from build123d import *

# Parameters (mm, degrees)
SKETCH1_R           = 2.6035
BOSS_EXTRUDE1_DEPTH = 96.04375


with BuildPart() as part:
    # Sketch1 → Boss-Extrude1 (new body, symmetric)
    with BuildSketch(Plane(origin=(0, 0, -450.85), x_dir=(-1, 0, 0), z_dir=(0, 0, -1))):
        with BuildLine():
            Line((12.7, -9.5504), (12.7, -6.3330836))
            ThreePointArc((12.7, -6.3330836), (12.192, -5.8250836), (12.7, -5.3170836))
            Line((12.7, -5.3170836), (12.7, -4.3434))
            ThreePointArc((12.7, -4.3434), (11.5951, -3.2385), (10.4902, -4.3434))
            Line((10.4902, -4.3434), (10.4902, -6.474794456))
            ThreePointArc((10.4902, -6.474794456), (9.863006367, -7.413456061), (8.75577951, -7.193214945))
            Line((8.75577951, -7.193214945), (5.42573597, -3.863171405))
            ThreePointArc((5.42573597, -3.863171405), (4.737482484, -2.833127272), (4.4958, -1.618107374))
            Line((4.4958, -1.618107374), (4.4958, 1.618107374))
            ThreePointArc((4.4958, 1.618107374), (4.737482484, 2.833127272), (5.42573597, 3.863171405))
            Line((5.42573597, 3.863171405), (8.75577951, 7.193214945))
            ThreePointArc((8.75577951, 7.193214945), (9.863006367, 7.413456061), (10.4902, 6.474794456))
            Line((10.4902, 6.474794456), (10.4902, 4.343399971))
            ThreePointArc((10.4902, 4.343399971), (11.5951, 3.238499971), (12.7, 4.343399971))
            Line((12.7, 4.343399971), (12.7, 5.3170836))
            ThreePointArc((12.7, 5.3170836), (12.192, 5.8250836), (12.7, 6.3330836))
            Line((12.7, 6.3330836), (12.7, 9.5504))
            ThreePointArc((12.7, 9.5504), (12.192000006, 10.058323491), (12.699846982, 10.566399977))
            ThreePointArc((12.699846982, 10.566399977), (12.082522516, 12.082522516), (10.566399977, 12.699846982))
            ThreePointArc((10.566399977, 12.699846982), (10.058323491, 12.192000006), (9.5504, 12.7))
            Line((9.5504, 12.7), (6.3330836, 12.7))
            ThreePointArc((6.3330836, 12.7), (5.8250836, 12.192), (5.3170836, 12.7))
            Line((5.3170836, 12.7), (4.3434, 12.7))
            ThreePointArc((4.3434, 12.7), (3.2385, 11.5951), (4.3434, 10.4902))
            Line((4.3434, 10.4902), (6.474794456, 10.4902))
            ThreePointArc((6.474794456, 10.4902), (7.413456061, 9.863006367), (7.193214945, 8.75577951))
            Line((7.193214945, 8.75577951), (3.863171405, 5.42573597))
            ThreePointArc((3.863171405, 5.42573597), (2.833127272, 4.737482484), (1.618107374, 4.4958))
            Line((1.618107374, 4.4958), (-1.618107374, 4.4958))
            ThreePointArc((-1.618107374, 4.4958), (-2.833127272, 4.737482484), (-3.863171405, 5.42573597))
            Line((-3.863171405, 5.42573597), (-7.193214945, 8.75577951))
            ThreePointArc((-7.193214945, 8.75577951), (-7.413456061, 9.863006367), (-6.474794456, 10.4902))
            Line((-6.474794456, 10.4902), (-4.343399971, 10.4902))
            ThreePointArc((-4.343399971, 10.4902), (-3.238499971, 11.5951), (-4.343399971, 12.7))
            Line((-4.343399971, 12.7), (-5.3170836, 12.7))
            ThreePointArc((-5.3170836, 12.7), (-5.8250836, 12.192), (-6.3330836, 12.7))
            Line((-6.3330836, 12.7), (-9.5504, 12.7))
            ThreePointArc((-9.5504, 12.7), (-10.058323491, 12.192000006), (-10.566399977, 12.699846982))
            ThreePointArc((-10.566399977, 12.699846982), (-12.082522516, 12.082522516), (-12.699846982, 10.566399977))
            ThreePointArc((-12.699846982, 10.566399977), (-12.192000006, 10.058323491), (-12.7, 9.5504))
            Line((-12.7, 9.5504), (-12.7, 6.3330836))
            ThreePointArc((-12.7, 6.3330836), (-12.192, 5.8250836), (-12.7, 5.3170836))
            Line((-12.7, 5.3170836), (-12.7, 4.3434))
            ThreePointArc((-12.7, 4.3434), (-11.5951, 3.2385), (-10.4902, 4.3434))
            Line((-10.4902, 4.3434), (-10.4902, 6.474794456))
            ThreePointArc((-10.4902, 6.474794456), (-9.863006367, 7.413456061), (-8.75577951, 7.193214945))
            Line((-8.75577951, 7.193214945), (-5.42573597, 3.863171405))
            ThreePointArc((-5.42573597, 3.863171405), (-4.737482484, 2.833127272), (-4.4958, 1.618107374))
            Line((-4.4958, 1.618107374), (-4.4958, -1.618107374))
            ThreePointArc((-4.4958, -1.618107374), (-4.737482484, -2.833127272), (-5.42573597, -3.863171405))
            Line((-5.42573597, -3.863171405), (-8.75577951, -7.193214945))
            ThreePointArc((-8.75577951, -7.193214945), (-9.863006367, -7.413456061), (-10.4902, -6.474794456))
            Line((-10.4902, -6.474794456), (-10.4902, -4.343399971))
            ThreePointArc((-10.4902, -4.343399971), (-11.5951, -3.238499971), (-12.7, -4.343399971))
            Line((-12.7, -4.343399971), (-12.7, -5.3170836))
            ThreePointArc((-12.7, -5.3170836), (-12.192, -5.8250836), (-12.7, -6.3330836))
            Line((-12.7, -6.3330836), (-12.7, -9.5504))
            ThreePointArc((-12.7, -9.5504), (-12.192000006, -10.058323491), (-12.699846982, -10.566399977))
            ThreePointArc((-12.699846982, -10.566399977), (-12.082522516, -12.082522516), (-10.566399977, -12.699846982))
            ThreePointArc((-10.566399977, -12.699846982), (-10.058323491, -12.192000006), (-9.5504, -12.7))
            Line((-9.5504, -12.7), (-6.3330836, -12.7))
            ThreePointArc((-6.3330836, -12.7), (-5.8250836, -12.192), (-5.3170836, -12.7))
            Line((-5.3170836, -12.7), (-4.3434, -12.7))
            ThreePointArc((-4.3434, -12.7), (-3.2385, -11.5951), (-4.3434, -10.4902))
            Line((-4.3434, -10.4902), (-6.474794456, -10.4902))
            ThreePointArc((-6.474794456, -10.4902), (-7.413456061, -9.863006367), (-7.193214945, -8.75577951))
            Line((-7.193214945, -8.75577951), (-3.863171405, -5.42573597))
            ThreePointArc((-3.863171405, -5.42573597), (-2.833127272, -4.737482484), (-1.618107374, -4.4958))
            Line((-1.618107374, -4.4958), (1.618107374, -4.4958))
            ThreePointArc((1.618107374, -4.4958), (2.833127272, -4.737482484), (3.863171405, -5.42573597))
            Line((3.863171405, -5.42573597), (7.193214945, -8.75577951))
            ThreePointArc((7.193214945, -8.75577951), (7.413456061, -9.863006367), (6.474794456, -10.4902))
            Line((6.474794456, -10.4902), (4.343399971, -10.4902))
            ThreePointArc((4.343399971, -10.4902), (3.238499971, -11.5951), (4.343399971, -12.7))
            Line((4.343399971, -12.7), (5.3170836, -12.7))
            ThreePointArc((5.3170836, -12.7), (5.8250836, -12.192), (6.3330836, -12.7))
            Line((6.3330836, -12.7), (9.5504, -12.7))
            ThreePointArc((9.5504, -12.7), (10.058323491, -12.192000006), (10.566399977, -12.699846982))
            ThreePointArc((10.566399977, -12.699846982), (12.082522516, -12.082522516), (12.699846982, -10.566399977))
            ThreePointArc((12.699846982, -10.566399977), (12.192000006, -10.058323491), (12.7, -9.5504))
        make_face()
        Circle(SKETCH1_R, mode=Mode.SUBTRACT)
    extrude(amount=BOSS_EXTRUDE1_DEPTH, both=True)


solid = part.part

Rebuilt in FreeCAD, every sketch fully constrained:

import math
import FreeCAD as App
import Part
import Sketcher
Q = App.Units.Quantity

doc = App.newDocument("Part")
params = doc.addObject("Spreadsheet::Sheet", "Params")
for row, (alias, value) in enumerate([
    ("sketch1_radius", "0.02 in"),
    ("sketch1_radius2", "0.04 in"),
    ("sketch1_diameter", "0.205 in"),
    ("sketch1_radius3", "0.125 in"),
    ("sketch1_radius4", "0.083 in"),
    ("pad1_length", "7.5625 in"),
], start=1):
    params.set(f"A{row}", alias)
    params.set(f"B{row}", "=" + value)
    params.setAlias(f"B{row}", alias)

body = doc.addObject("PartDesign::Body", "Body")

# Sketch on XY plane
sketch1 = body.newObject("Sketcher::SketchObject", "Sketch")
sketch1.AttachmentSupport = (doc.getObject("XY_Plane"), [""])
sketch1.MapMode = "FlatFace"
sketch1.AttachmentOffset = App.Placement(App.Vector(0, 0, -17.75 * 25.4), App.Rotation())
sketch1.addGeometry(Part.LineSegment(App.Vector(-12.7, -9.5504, 0), App.Vector(-12.7, -6.333084, 0)), False)
sketch1.addGeometry(Part.ArcOfCircle(Part.Circle(App.Vector(-12.7, -5.825084, 0), App.Vector(0, 0, 1), 0.508), math.radians(-90), math.radians(90)), False)
sketch1.addGeometry(Part.LineSegment(App.Vector(-12.7, -5.317084, 0), App.Vector(-12.7, -4.3434, 0)), False)
sketch1.addGeometry(Part.ArcOfCircle(Part.Circle(App.Vector(-11.5951, -4.3434, 0), App.Vector(0, 0, 1), 1.1049), math.radians(0), math.radians(180)), False)
sketch1.addGeometry(Part.LineSegment(App.Vector(-10.4902, -4.3434, 0), App.Vector(-10.4902, -6.474794, 0)), False)
sketch1.addGeometry(Part.ArcOfCircle(Part.Circle(App.Vector(-9.4742, -6.474794, 0), App.Vector(0, 0, 1), 1.016), math.radians(180), math.radians(315)), False)
sketch1.addGeometry(Part.LineSegment(App.Vector(-8.75578, -7.193215, 0), App.Vector(-5.425736, -3.863171, 0)), False)
sketch1.addGeometry(Part.ArcOfCircle(Part.Circle(App.Vector(-7.6708, -1.618107, 0), App.Vector(0, 0, 1), 3.175), math.radians(-45), math.radians(0)), False)
sketch1.addGeometry(Part.LineSegment(App.Vector(-4.4958, -1.618107, 0), App.Vector(-4.4958, 1.618107, 0)), False)
sketch1.addGeometry(Part.ArcOfCircle(Part.Circle(App.Vector(-7.6708, 1.618107, 0), App.Vector(0, 0, 1), 3.175), math.radians(0), math.radians(45)), False)
sketch1.addGeometry(Part.LineSegment(App.Vector(-5.425736, 3.863171, 0), App.Vector(-8.75578, 7.193215, 0)), False)
sketch1.addGeometry(Part.ArcOfCircle(Part.Circle(App.Vector(-9.4742, 6.474794, 0), App.Vector(0, 0, 1), 1.016), math.radians(45), math.radians(180)), False)
sketch1.addGeometry(Part.LineSegment(App.Vector(-10.4902, 6.474794, 0), App.Vector(-10.4902, 4.3434, 0)), False)
sketch1.addGeometry(Part.ArcOfCircle(Part.Circle(App.Vector(-11.5951, 4.3434, 0), App.Vector(0, 0, 1), 1.1049), math.radians(180), math.radians(360)), False)
sketch1.addGeometry(Part.LineSegment(App.Vector(-12.7, 4.3434, 0), App.Vector(-12.7, 5.317084, 0)), False)
sketch1.addGeometry(Part.ArcOfCircle(Part.Circle(App.Vector(-12.7, 5.825084, 0), App.Vector(0, 0, 1), 0.508), math.radians(-90), math.radians(90)), False)
sketch1.addGeometry(Part.LineSegment(App.Vector(-12.7, 6.333084, 0), App.Vector(-12.7, 9.5504, 0)), False)
sketch1.addGeometry(Part.ArcOfCircle(Part.Circle(App.Vector(-12.7, 10.0584, 0), App.Vector(0, 0, 1), 0.508), math.radians(-90), math.radians(89.982742)), False)
sketch1.addGeometry(Part.ArcOfCircle(Part.Circle(App.Vector(-10.5918, 10.5918, 0), App.Vector(0, 0, 1), 2.1082), math.radians(89.309672), math.radians(180.690328)), False)
sketch1.addGeometry(Part.ArcOfCircle(Part.Circle(App.Vector(-10.0584, 12.7, 0), App.Vector(0, 0, 1), 0.508), math.radians(-179.982742), math.radians(0)), False)
sketch1.addGeometry(Part.LineSegment(App.Vector(-9.5504, 12.7, 0), App.Vector(-6.333084, 12.7, 0)), False)
sketch1.addGeometry(Part.ArcOfCircle(Part.Circle(App.Vector(-5.825084, 12.7, 0), App.Vector(0, 0, 1), 0.508), math.radians(180), math.radians(360)), False)
sketch1.addGeometry(Part.LineSegment(App.Vector(-5.317084, 12.7, 0), App.Vector(-4.3434, 12.7, 0)), False)
sketch1.addGeometry(Part.ArcOfCircle(Part.Circle(App.Vector(-4.3434, 11.5951, 0), App.Vector(0, 0, 1), 1.1049), math.radians(-90), math.radians(90)), False)
sketch1.addGeometry(Part.LineSegment(App.Vector(-4.3434, 10.4902, 0), App.Vector(-6.474794, 10.4902, 0)), False)
sketch1.addGeometry(Part.ArcOfCircle(Part.Circle(App.Vector(-6.474794, 9.4742, 0), App.Vector(0, 0, 1), 1.016), math.radians(90), math.radians(225)), False)
sketch1.addGeometry(Part.LineSegment(App.Vector(-7.193215, 8.75578, 0), App.Vector(-3.863171, 5.425736, 0)), False)
sketch1.addGeometry(Part.ArcOfCircle(Part.Circle(App.Vector(-1.618107, 7.6708, 0), App.Vector(0, 0, 1), 3.175), math.radians(-135), math.radians(-90)), False)
sketch1.addGeometry(Part.LineSegment(App.Vector(-1.618107, 4.4958, 0), App.Vector(1.618107, 4.4958, 0)), False)
sketch1.addGeometry(Part.ArcOfCircle(Part.Circle(App.Vector(1.618107, 7.6708, 0), App.Vector(0, 0, 1), 3.175), math.radians(-90), math.radians(-45)), False)
sketch1.addGeometry(Part.LineSegment(App.Vector(3.863171, 5.425736, 0), App.Vector(7.193215, 8.75578, 0)), False)
sketch1.addGeometry(Part.ArcOfCircle(Part.Circle(App.Vector(6.474794, 9.4742, 0), App.Vector(0, 0, 1), 1.016), math.radians(-45), math.radians(90)), False)
sketch1.addGeometry(Part.LineSegment(App.Vector(6.474794, 10.4902, 0), App.Vector(4.3434, 10.4902, 0)), False)
sketch1.addGeometry(Part.ArcOfCircle(Part.Circle(App.Vector(4.3434, 11.5951, 0), App.Vector(0, 0, 1), 1.1049), math.radians(90), math.radians(270)), False)
sketch1.addGeometry(Part.LineSegment(App.Vector(4.3434, 12.7, 0), App.Vector(5.317084, 12.7, 0)), False)
sketch1.addGeometry(Part.ArcOfCircle(Part.Circle(App.Vector(5.825084, 12.7, 0), App.Vector(0, 0, 1), 0.508), math.radians(180), math.radians(360)), False)
sketch1.addGeometry(Part.LineSegment(App.Vector(6.333084, 12.7, 0), App.Vector(9.5504, 12.7, 0)), False)
sketch1.addGeometry(Part.ArcOfCircle(Part.Circle(App.Vector(10.0584, 12.7, 0), App.Vector(0, 0, 1), 0.508), math.radians(180), math.radians(359.982742)), False)
sketch1.addGeometry(Part.ArcOfCircle(Part.Circle(App.Vector(10.5918, 10.5918, 0), App.Vector(0, 0, 1), 2.1082), math.radians(-0.690328), math.radians(90.690328)), False)
sketch1.addGeometry(Part.ArcOfCircle(Part.Circle(App.Vector(12.7, 10.0584, 0), App.Vector(0, 0, 1), 0.508), math.radians(90.017258), math.radians(270)), False)
sketch1.addGeometry(Part.LineSegment(App.Vector(12.7, 9.5504, 0), App.Vector(12.7, 6.333084, 0)), False)
sketch1.addGeometry(Part.ArcOfCircle(Part.Circle(App.Vector(12.7, 5.825084, 0), App.Vector(0, 0, 1), 0.508), math.radians(90), math.radians(270)), False)
sketch1.addGeometry(Part.LineSegment(App.Vector(12.7, 5.317084, 0), App.Vector(12.7, 4.3434, 0)), False)
sketch1.addGeometry(Part.ArcOfCircle(Part.Circle(App.Vector(11.5951, 4.3434, 0), App.Vector(0, 0, 1), 1.1049), math.radians(180), math.radians(360)), False)
sketch1.addGeometry(Part.LineSegment(App.Vector(10.4902, 4.3434, 0), App.Vector(10.4902, 6.474794, 0)), False)
sketch1.addGeometry(Part.ArcOfCircle(Part.Circle(App.Vector(9.4742, 6.474794, 0), App.Vector(0, 0, 1), 1.016), math.radians(0), math.radians(135)), False)
sketch1.addGeometry(Part.LineSegment(App.Vector(8.75578, 7.193215, 0), App.Vector(5.425736, 3.863171, 0)), False)
sketch1.addGeometry(Part.ArcOfCircle(Part.Circle(App.Vector(7.6708, 1.618107, 0), App.Vector(0, 0, 1), 3.175), math.radians(135), math.radians(180)), False)
sketch1.addGeometry(Part.LineSegment(App.Vector(4.4958, 1.618107, 0), App.Vector(4.4958, -1.618107, 0)), False)
sketch1.addGeometry(Part.ArcOfCircle(Part.Circle(App.Vector(7.6708, -1.618107, 0), App.Vector(0, 0, 1), 3.175), math.radians(180), math.radians(225)), False)
sketch1.addGeometry(Part.LineSegment(App.Vector(5.425736, -3.863171, 0), App.Vector(8.75578, -7.193215, 0)), False)
sketch1.addGeometry(Part.ArcOfCircle(Part.Circle(App.Vector(9.4742, -6.474794, 0), App.Vector(0, 0, 1), 1.016), math.radians(-135), math.radians(0)), False)
sketch1.addGeometry(Part.LineSegment(App.Vector(10.4902, -6.474794, 0), App.Vector(10.4902, -4.3434, 0)), False)
sketch1.addGeometry(Part.ArcOfCircle(Part.Circle(App.Vector(11.5951, -4.3434, 0), App.Vector(0, 0, 1), 1.1049), math.radians(0), math.radians(180)), False)
sketch1.addGeometry(Part.LineSegment(App.Vector(12.7, -4.3434, 0), App.Vector(12.7, -5.317084, 0)), False)
sketch1.addGeometry(Part.ArcOfCircle(Part.Circle(App.Vector(12.7, -5.825084, 0), App.Vector(0, 0, 1), 0.508), math.radians(90), math.radians(270)), False)
sketch1.addGeometry(Part.LineSegment(App.Vector(12.7, -6.333084, 0), App.Vector(12.7, -9.5504, 0)), False)
sketch1.addGeometry(Part.ArcOfCircle(Part.Circle(App.Vector(12.7, -10.0584, 0), App.Vector(0, 0, 1), 0.508), math.radians(90), math.radians(269.982742)), False)
sketch1.addGeometry(Part.ArcOfCircle(Part.Circle(App.Vector(10.5918, -10.5918, 0), App.Vector(0, 0, 1), 2.1082), math.radians(-90.690328), math.radians(0.690328)), False)
sketch1.addGeometry(Part.ArcOfCircle(Part.Circle(App.Vector(10.0584, -12.7, 0), App.Vector(0, 0, 1), 0.508), math.radians(0.017258), math.radians(180)), False)
sketch1.addGeometry(Part.LineSegment(App.Vector(9.5504, -12.7, 0), App.Vector(6.333084, -12.7, 0)), False)
sketch1.addGeometry(Part.ArcOfCircle(Part.Circle(App.Vector(5.825084, -12.7, 0), App.Vector(0, 0, 1), 0.508), math.radians(0), math.radians(180)), False)
sketch1.addGeometry(Part.LineSegment(App.Vector(5.317084, -12.7, 0), App.Vector(4.3434, -12.7, 0)), False)
sketch1.addGeometry(Part.ArcOfCircle(Part.Circle(App.Vector(4.3434, -11.5951, 0), App.Vector(0, 0, 1), 1.1049), math.radians(90), math.radians(270)), False)
sketch1.addGeometry(Part.LineSegment(App.Vector(4.3434, -10.4902, 0), App.Vector(6.474794, -10.4902, 0)), False)
sketch1.addGeometry(Part.ArcOfCircle(Part.Circle(App.Vector(6.474794, -9.4742, 0), App.Vector(0, 0, 1), 1.016), math.radians(-90), math.radians(45)), False)
sketch1.addGeometry(Part.LineSegment(App.Vector(7.193215, -8.75578, 0), App.Vector(3.863171, -5.425736, 0)), False)
sketch1.addGeometry(Part.ArcOfCircle(Part.Circle(App.Vector(1.618107, -7.6708, 0), App.Vector(0, 0, 1), 3.175), math.radians(45), math.radians(90)), False)
sketch1.addGeometry(Part.LineSegment(App.Vector(1.618107, -4.4958, 0), App.Vector(-1.618107, -4.4958, 0)), False)
sketch1.addGeometry(Part.ArcOfCircle(Part.Circle(App.Vector(-1.618107, -7.6708, 0), App.Vector(0, 0, 1), 3.175), math.radians(90), math.radians(135)), False)
sketch1.addGeometry(Part.LineSegment(App.Vector(-3.863171, -5.425736, 0), App.Vector(-7.193215, -8.75578, 0)), False)
sketch1.addGeometry(Part.ArcOfCircle(Part.Circle(App.Vector(-6.474794, -9.4742, 0), App.Vector(0, 0, 1), 1.016), math.radians(135), math.radians(270)), False)
sketch1.addGeometry(Part.LineSegment(App.Vector(-6.474794, -10.4902, 0), App.Vector(-4.3434, -10.4902, 0)), False)
sketch1.addGeometry(Part.ArcOfCircle(Part.Circle(App.Vector(-4.3434, -11.5951, 0), App.Vector(0, 0, 1), 1.1049), math.radians(-90), math.radians(90)), False)
sketch1.addGeometry(Part.LineSegment(App.Vector(-4.3434, -12.7, 0), App.Vector(-5.317084, -12.7, 0)), False)
sketch1.addGeometry(Part.ArcOfCircle(Part.Circle(App.Vector(-5.825084, -12.7, 0), App.Vector(0, 0, 1), 0.508), math.radians(0), math.radians(180)), False)
sketch1.addGeometry(Part.LineSegment(App.Vector(-6.333084, -12.7, 0), App.Vector(-9.5504, -12.7, 0)), False)
sketch1.addGeometry(Part.ArcOfCircle(Part.Circle(App.Vector(-10.0584, -12.7, 0), App.Vector(0, 0, 1), 0.508), math.radians(0), math.radians(179.982742)), False)
sketch1.addGeometry(Part.ArcOfCircle(Part.Circle(App.Vector(-10.5918, -10.5918, 0), App.Vector(0, 0, 1), 2.1082), math.radians(179.309672), math.radians(270.690328)), False)
sketch1.addGeometry(Part.ArcOfCircle(Part.Circle(App.Vector(-12.7, -10.0584, 0), App.Vector(0, 0, 1), 0.508), math.radians(-89.982742), math.radians(90)), False)
sketch1.addGeometry(Part.Circle(App.Vector(0, 0, 0), App.Vector(0, 0, 1), 2.6035), False)
sketch1.addConstraint(Sketcher.Constraint("Coincident", 0, 2, 1, 1))
sketch1.addConstraint(Sketcher.Constraint("Coincident", 1, 2, 2, 1))
sketch1.addConstraint(Sketcher.Constraint("Tangent", 2, 2, 3, 2))
sketch1.addConstraint(Sketcher.Constraint("Tangent", 3, 1, 4, 1))
sketch1.addConstraint(Sketcher.Constraint("Tangent", 4, 2, 5, 1))
sketch1.addConstraint(Sketcher.Constraint("Tangent", 5, 2, 6, 1))
sketch1.addConstraint(Sketcher.Constraint("Tangent", 6, 2, 7, 1))
sketch1.addConstraint(Sketcher.Constraint("Tangent", 7, 2, 8, 1))
sketch1.addConstraint(Sketcher.Constraint("Tangent", 8, 2, 9, 1))
sketch1.addConstraint(Sketcher.Constraint("Tangent", 9, 2, 10, 1))
sketch1.addConstraint(Sketcher.Constraint("Tangent", 10, 2, 11, 1))
sketch1.addConstraint(Sketcher.Constraint("Tangent", 11, 2, 12, 1))
sketch1.addConstraint(Sketcher.Constraint("Tangent", 12, 2, 13, 2))
sketch1.addConstraint(Sketcher.Constraint("Tangent", 13, 1, 14, 1))
sketch1.addConstraint(Sketcher.Constraint("Coincident", 14, 2, 15, 1))
sketch1.addConstraint(Sketcher.Constraint("Coincident", 15, 2, 16, 1))
sketch1.addConstraint(Sketcher.Constraint("Coincident", 16, 2, 17, 1))
sketch1.addConstraint(Sketcher.Constraint("Coincident", 17, 2, 18, 2))
sketch1.addConstraint(Sketcher.Constraint("Coincident", 18, 1, 19, 1))
sketch1.addConstraint(Sketcher.Constraint("Coincident", 19, 2, 20, 1))
sketch1.addConstraint(Sketcher.Constraint("Coincident", 20, 2, 21, 1))
sketch1.addConstraint(Sketcher.Constraint("Coincident", 21, 2, 22, 1))
sketch1.addConstraint(Sketcher.Constraint("Tangent", 22, 2, 23, 2))
sketch1.addConstraint(Sketcher.Constraint("Tangent", 23, 1, 24, 1))
sketch1.addConstraint(Sketcher.Constraint("Tangent", 24, 2, 25, 1))
sketch1.addConstraint(Sketcher.Constraint("Tangent", 25, 2, 26, 1))
sketch1.addConstraint(Sketcher.Constraint("Tangent", 26, 2, 27, 1))
sketch1.addConstraint(Sketcher.Constraint("Tangent", 27, 2, 28, 1))
sketch1.addConstraint(Sketcher.Constraint("Tangent", 28, 2, 29, 1))
sketch1.addConstraint(Sketcher.Constraint("Tangent", 29, 2, 30, 1))
sketch1.addConstraint(Sketcher.Constraint("Tangent", 30, 2, 31, 1))
sketch1.addConstraint(Sketcher.Constraint("Tangent", 31, 2, 32, 1))
sketch1.addConstraint(Sketcher.Constraint("Tangent", 32, 2, 33, 2))
sketch1.addConstraint(Sketcher.Constraint("Tangent", 33, 1, 34, 1))
sketch1.addConstraint(Sketcher.Constraint("Coincident", 34, 2, 35, 1))
sketch1.addConstraint(Sketcher.Constraint("Coincident", 35, 2, 36, 1))
sketch1.addConstraint(Sketcher.Constraint("Coincident", 36, 2, 37, 1))
sketch1.addConstraint(Sketcher.Constraint("Coincident", 37, 2, 38, 2))
sketch1.addConstraint(Sketcher.Constraint("Coincident", 38, 1, 39, 1))
sketch1.addConstraint(Sketcher.Constraint("Coincident", 39, 2, 40, 1))
sketch1.addConstraint(Sketcher.Constraint("Coincident", 40, 2, 41, 1))
sketch1.addConstraint(Sketcher.Constraint("Coincident", 41, 2, 42, 1))
sketch1.addConstraint(Sketcher.Constraint("Tangent", 42, 2, 43, 2))
sketch1.addConstraint(Sketcher.Constraint("Tangent", 43, 1, 44, 1))
sketch1.addConstraint(Sketcher.Constraint("Tangent", 44, 2, 45, 1))
sketch1.addConstraint(Sketcher.Constraint("Tangent", 45, 2, 46, 1))
sketch1.addConstraint(Sketcher.Constraint("Tangent", 46, 2, 47, 1))
sketch1.addConstraint(Sketcher.Constraint("Tangent", 47, 2, 48, 1))
sketch1.addConstraint(Sketcher.Constraint("Tangent", 48, 2, 49, 1))
sketch1.addConstraint(Sketcher.Constraint("Tangent", 49, 2, 50, 1))
sketch1.addConstraint(Sketcher.Constraint("Tangent", 50, 2, 51, 1))
sketch1.addConstraint(Sketcher.Constraint("Tangent", 51, 2, 52, 1))
sketch1.addConstraint(Sketcher.Constraint("Tangent", 52, 2, 53, 2))
sketch1.addConstraint(Sketcher.Constraint("Tangent", 53, 1, 54, 1))
sketch1.addConstraint(Sketcher.Constraint("Coincident", 54, 2, 55, 1))
sketch1.addConstraint(Sketcher.Constraint("Coincident", 55, 2, 56, 1))
sketch1.addConstraint(Sketcher.Constraint("Coincident", 56, 2, 57, 1))
sketch1.addConstraint(Sketcher.Constraint("Coincident", 57, 2, 58, 2))
sketch1.addConstraint(Sketcher.Constraint("Coincident", 58, 1, 59, 1))
sketch1.addConstraint(Sketcher.Constraint("Coincident", 59, 2, 60, 1))
sketch1.addConstraint(Sketcher.Constraint("Coincident", 60, 2, 61, 1))
sketch1.addConstraint(Sketcher.Constraint("Coincident", 61, 2, 62, 1))
sketch1.addConstraint(Sketcher.Constraint("Tangent", 62, 2, 63, 2))
sketch1.addConstraint(Sketcher.Constraint("Tangent", 63, 1, 64, 1))
sketch1.addConstraint(Sketcher.Constraint("Tangent", 64, 2, 65, 1))
sketch1.addConstraint(Sketcher.Constraint("Tangent", 65, 2, 66, 1))
sketch1.addConstraint(Sketcher.Constraint("Tangent", 66, 2, 67, 1))
sketch1.addConstraint(Sketcher.Constraint("Tangent", 67, 2, 68, 1))
sketch1.addConstraint(Sketcher.Constraint("Tangent", 68, 2, 69, 1))
sketch1.addConstraint(Sketcher.Constraint("Tangent", 69, 2, 70, 1))
sketch1.addConstraint(Sketcher.Constraint("Tangent", 70, 2, 71, 1))
sketch1.addConstraint(Sketcher.Constraint("Tangent", 71, 2, 72, 1))
sketch1.addConstraint(Sketcher.Constraint("Tangent", 72, 2, 73, 2))
sketch1.addConstraint(Sketcher.Constraint("Tangent", 73, 1, 74, 1))
sketch1.addConstraint(Sketcher.Constraint("Coincident", 74, 2, 75, 1))
sketch1.addConstraint(Sketcher.Constraint("Coincident", 75, 2, 76, 1))
sketch1.addConstraint(Sketcher.Constraint("Coincident", 76, 2, 77, 1))
sketch1.addConstraint(Sketcher.Constraint("Coincident", 77, 2, 78, 2))
sketch1.addConstraint(Sketcher.Constraint("Coincident", 78, 1, 79, 1))
sketch1.addConstraint(Sketcher.Constraint("Coincident", 79, 2, 0, 1))
sketch1.addConstraint(Sketcher.Constraint("Vertical", 0))
sketch1.addConstraint(Sketcher.Constraint("Vertical", 2))
sketch1.addConstraint(Sketcher.Constraint("Vertical", 4))
sketch1.addConstraint(Sketcher.Constraint("Vertical", 8))
sketch1.addConstraint(Sketcher.Constraint("Vertical", 12))
sketch1.addConstraint(Sketcher.Constraint("Vertical", 14))
sketch1.addConstraint(Sketcher.Constraint("Vertical", 16))
sketch1.addConstraint(Sketcher.Constraint("Horizontal", 20))
sketch1.addConstraint(Sketcher.Constraint("Horizontal", 22))
sketch1.addConstraint(Sketcher.Constraint("Horizontal", 24))
sketch1.addConstraint(Sketcher.Constraint("Horizontal", 28))
sketch1.addConstraint(Sketcher.Constraint("Horizontal", 32))
sketch1.addConstraint(Sketcher.Constraint("Horizontal", 34))
sketch1.addConstraint(Sketcher.Constraint("Horizontal", 36))
sketch1.addConstraint(Sketcher.Constraint("Vertical", 40))
sketch1.addConstraint(Sketcher.Constraint("Vertical", 42))
sketch1.addConstraint(Sketcher.Constraint("Vertical", 44))
sketch1.addConstraint(Sketcher.Constraint("Vertical", 48))
sketch1.addConstraint(Sketcher.Constraint("Vertical", 52))
sketch1.addConstraint(Sketcher.Constraint("Vertical", 54))
sketch1.addConstraint(Sketcher.Constraint("Vertical", 56))
sketch1.addConstraint(Sketcher.Constraint("Horizontal", 60))
sketch1.addConstraint(Sketcher.Constraint("Horizontal", 62))
sketch1.addConstraint(Sketcher.Constraint("Horizontal", 64))
sketch1.addConstraint(Sketcher.Constraint("Horizontal", 68))
sketch1.addConstraint(Sketcher.Constraint("Horizontal", 72))
sketch1.addConstraint(Sketcher.Constraint("Horizontal", 74))
sketch1.addConstraint(Sketcher.Constraint("Horizontal", 76))
sketch1.addConstraint(Sketcher.Constraint("Coincident", 80, 3, -1, 1))
sketch1.addConstraint(Sketcher.Constraint("Equal", 7, 9))
sketch1.addConstraint(Sketcher.Constraint("Equal", 5, 11))
sketch1.addConstraint(Sketcher.Constraint("Equal", 3, 13))
sketch1.addConstraint(Sketcher.Constraint("Equal", 1, 15))
sketch1.addConstraint(Sketcher.Constraint("Equal", 15, 17))
sketch1.addConstraint(Sketcher.Constraint("Equal", 17, 19))
sketch1.addConstraint(Sketcher.Constraint("Equal", 19, 21))
sketch1.addConstraint(Sketcher.Constraint("Equal", 13, 23))
sketch1.addConstraint(Sketcher.Constraint("Equal", 11, 25))
sketch1.addConstraint(Sketcher.Constraint("Equal", 9, 27))
sketch1.addConstraint(Sketcher.Constraint("Equal", 27, 29))
sketch1.addConstraint(Sketcher.Constraint("Equal", 25, 31))
sketch1.addConstraint(Sketcher.Constraint("Equal", 23, 33))
sketch1.addConstraint(Sketcher.Constraint("Equal", 21, 35))
sketch1.addConstraint(Sketcher.Constraint("Equal", 35, 37))
sketch1.addConstraint(Sketcher.Constraint("Equal", 18, 38))
sketch1.addConstraint(Sketcher.Constraint("Equal", 37, 39))
sketch1.addConstraint(Sketcher.Constraint("Equal", 39, 41))
sketch1.addConstraint(Sketcher.Constraint("Equal", 33, 43))
sketch1.addConstraint(Sketcher.Constraint("Equal", 31, 45))
sketch1.addConstraint(Sketcher.Constraint("Equal", 29, 47))
sketch1.addConstraint(Sketcher.Constraint("Equal", 47, 49))
sketch1.addConstraint(Sketcher.Constraint("Equal", 45, 51))
sketch1.addConstraint(Sketcher.Constraint("Equal", 43, 53))
sketch1.addConstraint(Sketcher.Constraint("Equal", 41, 55))
sketch1.addConstraint(Sketcher.Constraint("Equal", 55, 57))
sketch1.addConstraint(Sketcher.Constraint("Equal", 38, 58))
sketch1.addConstraint(Sketcher.Constraint("Equal", 57, 59))
sketch1.addConstraint(Sketcher.Constraint("Equal", 59, 61))
sketch1.addConstraint(Sketcher.Constraint("Equal", 53, 63))
sketch1.addConstraint(Sketcher.Constraint("Equal", 51, 65))
sketch1.addConstraint(Sketcher.Constraint("Equal", 49, 67))
sketch1.addConstraint(Sketcher.Constraint("Equal", 67, 69))
sketch1.addConstraint(Sketcher.Constraint("Equal", 65, 71))
sketch1.addConstraint(Sketcher.Constraint("Equal", 63, 73))
sketch1.addConstraint(Sketcher.Constraint("Equal", 61, 75))
sketch1.addConstraint(Sketcher.Constraint("Equal", 75, 77))
sketch1.addConstraint(Sketcher.Constraint("Equal", 58, 78))
sketch1.addConstraint(Sketcher.Constraint("Equal", 77, 79))
sketch1.addConstraint(Sketcher.Constraint("Symmetric", 1, 3, 41, 3, -1, 1))
sketch1.addConstraint(Sketcher.Constraint("Symmetric", 3, 3, 43, 3, -1, 1))
sketch1.addConstraint(Sketcher.Constraint("Symmetric", 7, 3, 47, 3, -1, 1))
sketch1.addConstraint(Sketcher.Constraint("Symmetric", 11, 3, 51, 3, -1, 1))
sketch1.addConstraint(Sketcher.Constraint("Symmetric", 15, 3, 55, 3, -1, 1))
sketch1.addConstraint(Sketcher.Constraint("Symmetric", 17, 3, 57, 3, -1, 1))
sketch1.addConstraint(Sketcher.Constraint("Symmetric", 18, 3, 58, 3, -1, 1))
sketch1.addConstraint(Sketcher.Constraint("Symmetric", 19, 3, 59, 3, -1, 1))
sketch1.addConstraint(Sketcher.Constraint("Symmetric", 21, 3, 61, 3, -1, 1))
sketch1.addConstraint(Sketcher.Constraint("Symmetric", 23, 3, 63, 3, -1, 1))
sketch1.addConstraint(Sketcher.Constraint("Symmetric", 27, 3, 67, 3, -1, 1))
sketch1.addConstraint(Sketcher.Constraint("Symmetric", 31, 3, 71, 3, -1, 1))
sketch1.addConstraint(Sketcher.Constraint("Symmetric", 35, 3, 75, 3, -1, 1))
sketch1.addConstraint(Sketcher.Constraint("Symmetric", 37, 3, 77, 3, -1, 1))
sketch1.addConstraint(Sketcher.Constraint("Symmetric", 38, 3, 78, 3, -1, 1))
sketch1.addConstraint(Sketcher.Constraint("Symmetric", 39, 3, 79, 3, -1, 1))
sketch1.addConstraint(Sketcher.Constraint("Symmetric", 25, 3, 31, 3, -2))
sketch1.addConstraint(Sketcher.Constraint("Symmetric", 21, 3, 35, 3, -2))
sketch1.addConstraint(Sketcher.Constraint("Symmetric", 19, 3, 37, 3, -2))
sketch1.addConstraint(Sketcher.Constraint("Symmetric", 18, 3, 38, 3, -2))
sketch1.addConstraint(Sketcher.Constraint("Symmetric", 17, 3, 39, 3, -2))
sketch1.addConstraint(Sketcher.Constraint("Symmetric", 15, 3, 41, 3, -2))
sketch1.addConstraint(Sketcher.Constraint("Symmetric", 13, 3, 43, 3, -2))
sketch1.addConstraint(Sketcher.Constraint("Symmetric", 10, 2, 45, 2, -2))
sketch1.addConstraint(Sketcher.Constraint("Symmetric", 6, 2, 49, 2, -2))
sketch1.addConstraint(Sketcher.Constraint("Symmetric", 66, 2, 69, 2, -2))
sketch1.addConstraint(Sketcher.Constraint("Perpendicular", 6, 10))
sketch1.addConstraint(Sketcher.Constraint("Parallel", 10, 26))
sketch1.addConstraint(Sketcher.Constraint("Perpendicular", 26, 30))
sketch1.addConstraint(Sketcher.Constraint("Horizontal", 19, 3, 21, 3))
sketch1.addConstraint(Sketcher.Constraint("Horizontal", 3, 3, 53, 3))
sketch1.addConstraint(Sketcher.Constraint("Horizontal", 37, 3, 19, 2))
sketch1.addConstraint(Sketcher.Constraint("Horizontal", 20, 2, 21, 2))
sketch1.addConstraint(Sketcher.Constraint("Horizontal", 34, 2, 35, 2))
sketch1.addConstraint(Sketcher.Constraint("Horizontal", 77, 3, 59, 2))
sketch1.addConstraint(Sketcher.Constraint("Horizontal", 74, 2, 75, 2))
sketch1.addConstraint(Sketcher.Constraint("Vertical", 15, 3, 17, 3))
sketch1.addConstraint(Sketcher.Constraint("Vertical", 33, 3, 63, 3))
sketch1.addConstraint(Sketcher.Constraint("Vertical", 23, 3, 73, 3))
sketch1.addConstraint(Sketcher.Constraint("Vertical", 79, 3, 0, 2))
sketch1.addConstraint(Sketcher.Constraint("Vertical", 0, 2, 1, 2))
sketch1.addConstraint(Sketcher.Constraint("Vertical", 14, 2, 15, 2))
sketch1.addConstraint(Sketcher.Constraint("Vertical", 57, 3, 39, 2))
sketch1.addConstraint(Sketcher.Constraint("Vertical", 54, 2, 55, 2))
sketch1.addConstraint(Sketcher.Constraint("Equal", 76, 0))
sketch1.addConstraint(Sketcher.Constraint("Equal", 74, 2))
sketch1.addConstraint(Sketcher.Constraint("Equal", 72, 4))
sketch1.addConstraint(Sketcher.Constraint("Equal", 68, 8))
sketch1.addConstraint(Sketcher.Constraint("Equal", 10, 26))
sketch1.addConstraint(Sketcher.Constraint("Radius", 1, Q("0.02 in")))
sketch1.addConstraint(Sketcher.Constraint("Radius", 5, Q("0.04 in")))
sketch1.addConstraint(Sketcher.Constraint("Diameter", 80, Q("0.205 in")))
sketch1.addConstraint(Sketcher.Constraint("Radius", 7, Q("0.125 in")))
sketch1.addConstraint(Sketcher.Constraint("Radius", 18, Q("0.083 in")))
sketch1.addConstraint(Sketcher.Constraint("DistanceX", 1, 3, -1, 1, Q("0.5 in")))
sketch1.addConstraint(Sketcher.Constraint("DistanceY", -1, 1, 19, 3, Q("0.5 in")))
sketch1.addConstraint(Sketcher.Constraint("Radius", 3, Q("0.0435 in")))
sketch1.addConstraint(Sketcher.Constraint("DistanceY", 3, 3, -1, 1, Q("0.171 in")))
sketch1.addConstraint(Sketcher.Constraint("DistanceX", 7, 3, -1, 1, Q("0.302 in")))
sketch1.addConstraint(Sketcher.Constraint("DistanceY", -1, 1, 17, 3, Q("0.396 in")))
sketch1.addConstraint(Sketcher.Constraint("DistanceX", 18, 3, -1, 1, Q("0.417 in")))
sketch1.addConstraint(Sketcher.Constraint("DistanceY", -1, 1, 18, 3, Q("0.417 in")))
sketch1.addConstraint(Sketcher.Constraint("DistanceX", 20, 1, 20, 2, Q("3.217316 mm")))
sketch1.addConstraint(Sketcher.Constraint("DistanceX", 24, 2, 24, 1, Q("2.131394 mm")))
sketch1.setExpression("Constraints[197]", "Params.sketch1_radius")
sketch1.setExpression("Constraints[198]", "Params.sketch1_radius2")
sketch1.setExpression("Constraints[199]", "Params.sketch1_diameter")
sketch1.setExpression("Constraints[200]", "Params.sketch1_radius3")
sketch1.setExpression("Constraints[201]", "Params.sketch1_radius4")
pad1 = body.newObject("PartDesign::Pad", "Pad")
pad1.Profile = sketch1
pad1.setExpression("Length", "Params.pad1_length")
pad1.Midplane = True

doc.recompute()
